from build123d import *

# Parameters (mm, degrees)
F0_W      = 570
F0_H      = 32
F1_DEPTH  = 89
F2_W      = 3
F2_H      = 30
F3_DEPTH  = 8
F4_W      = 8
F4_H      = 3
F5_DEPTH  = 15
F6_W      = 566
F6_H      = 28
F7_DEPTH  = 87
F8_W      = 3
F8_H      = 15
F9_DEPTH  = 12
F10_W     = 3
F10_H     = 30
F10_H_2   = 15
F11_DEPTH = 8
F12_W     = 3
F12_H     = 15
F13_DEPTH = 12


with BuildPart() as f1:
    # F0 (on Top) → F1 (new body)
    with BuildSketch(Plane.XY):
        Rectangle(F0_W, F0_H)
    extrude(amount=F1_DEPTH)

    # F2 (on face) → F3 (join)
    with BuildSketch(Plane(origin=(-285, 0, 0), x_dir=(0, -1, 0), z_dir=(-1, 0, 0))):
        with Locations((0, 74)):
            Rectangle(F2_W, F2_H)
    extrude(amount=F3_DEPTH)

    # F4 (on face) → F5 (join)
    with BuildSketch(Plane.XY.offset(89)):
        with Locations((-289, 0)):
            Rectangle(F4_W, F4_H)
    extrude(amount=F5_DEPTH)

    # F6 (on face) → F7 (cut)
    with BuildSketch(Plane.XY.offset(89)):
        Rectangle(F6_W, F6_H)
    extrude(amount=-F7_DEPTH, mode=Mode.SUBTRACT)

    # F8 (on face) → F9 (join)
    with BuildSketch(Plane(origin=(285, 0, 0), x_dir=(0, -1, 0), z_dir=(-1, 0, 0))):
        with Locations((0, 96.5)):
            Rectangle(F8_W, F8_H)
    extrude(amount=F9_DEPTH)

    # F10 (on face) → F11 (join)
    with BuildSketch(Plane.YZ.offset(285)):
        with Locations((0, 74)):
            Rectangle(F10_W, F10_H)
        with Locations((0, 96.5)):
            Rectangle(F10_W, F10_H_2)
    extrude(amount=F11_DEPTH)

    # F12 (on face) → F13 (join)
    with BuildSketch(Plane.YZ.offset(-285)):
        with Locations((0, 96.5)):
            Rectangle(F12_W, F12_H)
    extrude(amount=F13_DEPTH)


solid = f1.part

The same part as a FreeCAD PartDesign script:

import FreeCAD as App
import Part
import Sketcher

V = App.Vector


def add_polygon(sketch, points):
    """Adds a closed chain of lines whose ends are joined by coincident constraints."""
    first, n = sketch.GeometryCount, len(points)
    for a, b in zip(points, points[1:] + points[:1]):
        sketch.addGeometry(Part.LineSegment(App.Vector(*a, 0), App.Vector(*b, 0)), False)
    for i in range(n):
        sketch.addConstraint(Sketcher.Constraint("Coincident", first + i, 2, first + (i + 1) % n, 1))

doc = App.newDocument("Part")
body = doc.addObject("PartDesign::Body", "Body")

sketch1 = body.newObject("Sketcher::SketchObject", "Sketch")
sketch1.AttachmentSupport = (doc.getObject("XY_Plane"), [""])
sketch1.MapMode = "FlatFace"
add_polygon(sketch1, [(-285, 16), (-285, -16), (285, -16), (285, 16)])
sketch1.addConstraint(Sketcher.Constraint("Vertical", 0))
sketch1.addConstraint(Sketcher.Constraint("Horizontal", 1))
sketch1.addConstraint(Sketcher.Constraint("Vertical", 2))
sketch1.addConstraint(Sketcher.Constraint("Horizontal", 3))
sketch1.addConstraint(Sketcher.Constraint("Symmetric", 0, 2, 2, 2, -1, 1))
sketch1.addConstraint(Sketcher.Constraint("DistanceX", 1, 1, 1, 2, 570.0))
sketch1.addConstraint(Sketcher.Constraint("DistanceY", 0, 2, 0, 1, 32.0))
pad1 = body.newObject("PartDesign::Pad", "Pad")
pad1.Profile = sketch1
pad1.Length = 89

sketch2 = body.newObject("Sketcher::SketchObject", "Sketch001")
sketch2.AttachmentSupport = (doc.getObject("YZ_Plane"), [""])
sketch2.MapMode = "FlatFace"
sketch2.AttachmentOffset = App.Placement(V(0, 0, -285), App.Rotation())
add_polygon(sketch2, [(1.5, 89), (1.5, 59), (-1.5, 59), (-1.5, 89)])
sketch2.addConstraint(Sketcher.Constraint("Vertical", 0))
sketch2.addConstraint(Sketcher.Constraint("Horizontal", 1))
sketch2.addConstraint(Sketcher.Constraint("Vertical", 2))
sketch2.addConstraint(Sketcher.Constraint("Horizontal", 3))
sketch2.addConstraint(Sketcher.Constraint("DistanceX", 1, 2, 1, 1, 3.0))
sketch2.addConstraint(Sketcher.Constraint("DistanceY", 0, 2, 0, 1, 30.0))
sketch2.addConstraint(Sketcher.Constraint("DistanceY", -1, 1, 0, 2, 59.0))
sketch2.addConstraint(Sketcher.Constraint("DistanceX", -1, 1, 0, 2, 1.5))
pad2 = body.newObject("PartDesign::Pad", "Pad001")
pad2.Profile = sketch2
pad2.Length = 8
pad2.Reversed = True

sketch3 = body.newObject("Sketcher::SketchObject", "Sketch002")
sketch3.AttachmentSupport = (doc.getObject("XY_Plane"), [""])
sketch3.MapMode = "FlatFace"
sketch3.AttachmentOffset = App.Placement(V(0, 0, 89), App.Rotation())
add_polygon(sketch3, [(-293, 1.5), (-293, -1.5), (-285, -1.5), (-285, 1.5)])
sketch3.addConstraint(Sketcher.Constraint("Vertical", 0))
sketch3.addConstraint(Sketcher.Constraint("Horizontal", 1))
sketch3.addConstraint(Sketcher.Constraint("Vertical", 2))
sketch3.addConstraint(Sketcher.Constraint("Horizontal", 3))
sketch3.addConstraint(Sketcher.Constraint("DistanceX", 1, 1, 1, 2, 8.0))
sketch3.addConstraint(Sketcher.Constraint("DistanceY", 0, 2, 0, 1, 3.0))
sketch3.addConstraint(Sketcher.Constraint("DistanceX", 0, 2, -1, 1, 293.0))
sketch3.addConstraint(Sketcher.Constraint("DistanceY", 0, 2, -1, 1, 1.5))
pad3 = body.newObject("PartDesign::Pad", "Pad002")
pad3.Profile = sketch3
pad3.Length = 15

sketch4 = body.newObject("Sketcher::SketchObject", "Sketch003")
sketch4.AttachmentSupport = (doc.getObject("XY_Plane"), [""])
sketch4.MapMode = "FlatFace"
sketch4.AttachmentOffset = App.Placement(V(0, 0, 89), App.Rotation())
add_polygon(sketch4, [(-283, 14), (-283, -14), (283, -14), (283, 14)])
sketch4.addConstraint(Sketcher.Constraint("Vertical", 0))
sketch4.addConstraint(Sketcher.Constraint("Horizontal", 1))
sketch4.addConstraint(Sketcher.Constraint("Vertical", 2))
sketch4.addConstraint(Sketcher.Constraint("Horizontal", 3))
sketch4.addConstraint(Sketcher.Constraint("Symmetric", 0, 2, 2, 2, -1, 1))
sketch4.addConstraint(Sketcher.Constraint("DistanceX", 1, 1, 1, 2, 566.0))
sketch4.addConstraint(Sketcher.Constraint("DistanceY", 0, 2, 0, 1, 28.0))
pocket1 = body.newObject("PartDesign::Pocket", "Pocket")
pocket1.Profile = sketch4
pocket1.Length = 87

sketch5 = body.newObject("Sketcher::SketchObject", "Sketch004")
sketch5.AttachmentSupport = (doc.getObject("YZ_Plane"), [""])
sketch5.MapMode = "FlatFace"
sketch5.AttachmentOffset = App.Placement(V(0, 0, 285), App.Rotation())
add_polygon(sketch5, [(1.5, 104), (1.5, 89), (-1.5, 89), (-1.5, 104)])
sketch5.addConstraint(Sketcher.Constraint("Vertical", 0))
sketch5.addConstraint(Sketcher.Constraint("Horizontal", 1))
sketch5.addConstraint(Sketcher.Constraint("Vertical", 2))
sketch5.addConstraint(Sketcher.Constraint("Horizontal", 3))
sketch5.addConstraint(Sketcher.Constraint("DistanceX", 1, 2, 1, 1, 3.0))
sketch5.addConstraint(Sketcher.Constraint("DistanceY", 0, 2, 0, 1, 15.0))
sketch5.addConstraint(Sketcher.Constraint("DistanceY", -1, 1, 0, 2, 89.0))
sketch5.addConstraint(Sketcher.Constraint("DistanceX", -1, 1, 0, 2, 1.5))
pad4 = body.newObject("PartDesign::Pad", "Pad003")
pad4.Profile = sketch5
pad4.Length = 12
pad4.Reversed = True

sketch6 = body.newObject("Sketcher::SketchObject", "Sketch005")
sketch6.AttachmentSupport = (doc.getObject("YZ_Plane"), [""])
sketch6.MapMode = "FlatFace"
sketch6.AttachmentOffset = App.Placement(V(0, 0, 285), App.Rotation())
add_polygon(sketch6, [(-1.5, 59), (1.5, 59), (1.5, 104), (-1.5, 104)])
sketch6.addConstraint(Sketcher.Constraint("Horizontal", 0))
sketch6.addConstraint(Sketcher.Constraint("Vertical", 1))
sketch6.addConstraint(Sketcher.Constraint("Horizontal", 2))
sketch6.addConstraint(Sketcher.Constraint("Vertical", 3))
sketch6.addConstraint(Sketcher.Constraint("DistanceX", 0, 1, 0, 2, 3.0))
sketch6.addConstraint(Sketcher.Constraint("DistanceY", 1, 1, 1, 2, 45.0))
sketch6.addConstraint(Sketcher.Constraint("DistanceY", -1, 1, 0, 2, 59.0))
sketch6.addConstraint(Sketcher.Constraint("DistanceX", -1, 1, 0, 2, 1.5))
pad5 = body.newObject("PartDesign::Pad", "Pad004")
pad5.Profile = sketch6
pad5.Length = 8

sketch7 = body.newObject("Sketcher::SketchObject", "Sketch006")
sketch7.AttachmentSupport = (doc.getObject("YZ_Plane"), [""])
sketch7.MapMode = "FlatFace"
sketch7.AttachmentOffset = App.Placement(V(0, 0, -285), App.Rotation())
add_polygon(sketch7, [(-1.5, 104), (-1.5, 89), (1.5, 89), (1.5, 104)])
sketch7.addConstraint(Sketcher.Constraint("Vertical", 0))
sketch7.addConstraint(Sketcher.Constraint("Horizontal", 1))
sketch7.addConstraint(Sketcher.Constraint("Vertical", 2))
sketch7.addConstraint(Sketcher.Constraint("Horizontal", 3))
sketch7.addConstraint(Sketcher.Constraint("DistanceX", 1, 1, 1, 2, 3.0))
sketch7.addConstraint(Sketcher.Constraint("DistanceY", 0, 2, 0, 1, 15.0))
sketch7.addConstraint(Sketcher.Constraint("DistanceY", -1, 1, 0, 2, 89.0))
sketch7.addConstraint(Sketcher.Constraint("DistanceX", 0, 2, -1, 1, 1.5))
pad6 = body.newObject("PartDesign::Pad", "Pad005")
pad6.Profile = sketch7
pad6.Length = 12

doc.recompute()
